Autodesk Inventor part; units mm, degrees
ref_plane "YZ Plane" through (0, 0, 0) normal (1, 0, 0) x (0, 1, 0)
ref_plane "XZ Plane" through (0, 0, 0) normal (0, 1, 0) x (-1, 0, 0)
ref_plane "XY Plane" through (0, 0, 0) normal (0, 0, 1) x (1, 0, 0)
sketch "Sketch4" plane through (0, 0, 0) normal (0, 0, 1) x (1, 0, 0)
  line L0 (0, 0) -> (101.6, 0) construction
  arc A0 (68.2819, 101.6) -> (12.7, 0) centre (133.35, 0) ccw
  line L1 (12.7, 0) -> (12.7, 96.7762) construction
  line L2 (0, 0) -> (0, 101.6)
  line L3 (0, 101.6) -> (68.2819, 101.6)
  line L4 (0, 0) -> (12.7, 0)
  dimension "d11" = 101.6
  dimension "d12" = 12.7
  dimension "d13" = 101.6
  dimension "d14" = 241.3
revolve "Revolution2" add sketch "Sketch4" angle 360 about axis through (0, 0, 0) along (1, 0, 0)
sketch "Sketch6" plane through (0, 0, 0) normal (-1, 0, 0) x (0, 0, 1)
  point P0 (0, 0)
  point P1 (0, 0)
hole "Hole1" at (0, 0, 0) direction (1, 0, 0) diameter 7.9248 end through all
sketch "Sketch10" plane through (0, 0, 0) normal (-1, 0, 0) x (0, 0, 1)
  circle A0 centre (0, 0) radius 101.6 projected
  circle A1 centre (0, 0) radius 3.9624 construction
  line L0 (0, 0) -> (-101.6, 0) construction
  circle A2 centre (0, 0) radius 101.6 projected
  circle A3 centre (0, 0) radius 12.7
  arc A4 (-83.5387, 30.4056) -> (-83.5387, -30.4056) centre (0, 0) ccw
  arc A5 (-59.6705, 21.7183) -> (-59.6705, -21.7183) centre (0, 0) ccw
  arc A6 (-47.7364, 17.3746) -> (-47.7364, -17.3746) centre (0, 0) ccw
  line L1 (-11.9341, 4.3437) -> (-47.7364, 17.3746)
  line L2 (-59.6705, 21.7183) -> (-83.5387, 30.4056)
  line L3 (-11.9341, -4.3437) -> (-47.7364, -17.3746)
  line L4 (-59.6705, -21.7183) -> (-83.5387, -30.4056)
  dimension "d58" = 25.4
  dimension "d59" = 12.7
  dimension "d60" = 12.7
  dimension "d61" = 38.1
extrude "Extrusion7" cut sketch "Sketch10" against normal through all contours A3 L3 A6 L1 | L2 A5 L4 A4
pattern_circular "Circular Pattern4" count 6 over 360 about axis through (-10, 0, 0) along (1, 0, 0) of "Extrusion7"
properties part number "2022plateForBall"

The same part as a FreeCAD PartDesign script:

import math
import FreeCAD as App
import Part
import Sketcher
from FreeCAD import Vector
Q = App.Units.Quantity

doc = App.newDocument("Part")
body = doc.addObject("PartDesign::Body", "Body")

# Sketch on XY plane
sketch1 = body.newObject("Sketcher::SketchObject", "Sketch")
sketch1.AttachmentSupport = (doc.getObject("XY_Plane"), [""])
sketch1.MapMode = "FlatFace"
sketch1.addGeometry(Part.ArcOfCircle(Part.Circle(Vector(133, 0, 0), Vector(0, 0, 1), 121), math.radians(123), math.radians(180)), False)
sketch1.addGeometry(Part.LineSegment(Vector(68, 102, 0), Vector(0, 102, 0)), False)
sketch1.addGeometry(Part.LineSegment(Vector(0, 102, 0), Vector(0, 0, 0)), False)
sketch1.addGeometry(Part.LineSegment(Vector(0, 0, 0), Vector(13, 0, 0)), False)
sketch1.addConstraint(Sketcher.Constraint("Coincident", 0, 1, 1, 1))
sketch1.addConstraint(Sketcher.Constraint("Coincident", 1, 2, 2, 1))
sketch1.addConstraint(Sketcher.Constraint("Coincident", 2, 2, 3, 1))
sketch1.addConstraint(Sketcher.Constraint("Coincident", 3, 2, 0, 2))
sketch1.addConstraint(Sketcher.Constraint("Horizontal", 1))
sketch1.addConstraint(Sketcher.Constraint("Vertical", 2))
sketch1.addConstraint(Sketcher.Constraint("Horizontal", 3))
sketch1.addConstraint(Sketcher.Constraint("Coincident", 2, 2, -1, 1))
sketch1.addConstraint(Sketcher.Constraint("PointOnObject", 0, 3, -1))
sketch1.addConstraint(Sketcher.Constraint("DistanceY", 2, 2, 2, 1, Q("4 in")))
sketch1.addConstraint(Sketcher.Constraint("Radius", 0, Q("4.75 in")))
sketch1.addConstraint(Sketcher.Constraint("DistanceX", 3, 1, 3, 2, Q("0.5 in")))
revolution = body.newObject("PartDesign::Revolution", "Revolution")
revolution.Profile = sketch1
revolution.ReferenceAxis = (sketch1, ["H_Axis"])
revolution.Angle = 360

# Sketch on YZ plane
sketch2 = body.newObject("Sketcher::SketchObject", "Sketch001")
sketch2.AttachmentSupport = (doc.getObject("YZ_Plane"), [""])
sketch2.MapMode = "FlatFace"
sketch2.addGeometry(Part.Circle(Vector(0, 0, 0), Vector(0, 0, 1), 4), False)
sketch2.addConstraint(Sketcher.Constraint("Coincident", 0, 3, -1, 1))
sketch2.addConstraint(Sketcher.Constraint("Diameter", 0, Q("0.312 in")))
doc.recompute()
hole = body.newObject("PartDesign::Hole", "Hole")
hole.Profile = sketch2
hole.ThreadType = "None"
hole.Diameter = Q("0.312 in")
hole.DepthType = "ThroughAll"
hole.Reversed = True

# Sketch on YZ plane
sketch3 = body.newObject("Sketcher::SketchObject", "Sketch002")
sketch3.AttachmentSupport = (doc.getObject("YZ_Plane"), [""])
sketch3.MapMode = "FlatFace"
sketch3.addGeometry(Part.ArcOfCircle(Part.Circle(Vector(0, 0, 0), Vector(0, 0, 1), 13), math.radians(-110), math.radians(-70)), False)
sketch3.addGeometry(Part.LineSegment(Vector(4, -12, 0), Vector(17, -48, 0)), False)
sketch3.addGeometry(Part.ArcOfCircle(Part.Circle(Vector(0, 0, 0), Vector(0, 0, 1), 51), math.radians(-110), math.radians(-70)), False)
sketch3.addGeometry(Part.LineSegment(Vector(-17, -48, 0), Vector(-4, -12, 0)), False)
sketch3.addGeometry(Part.LineSegment(Vector(22, -60, 0), Vector(30, -84, 0)), False)
sketch3.addGeometry(Part.ArcOfCircle(Part.Circle(Vector(0, 0, 0), Vector(0, 0, 1), 89), math.radians(-110), math.radians(-70)), False)
sketch3.addGeometry(Part.LineSegment(Vector(-30, -84, 0), Vector(-22, -60, 0)), False)
sketch3.addGeometry(Part.ArcOfCircle(Part.Circle(Vector(0, 0, 0), Vector(0, 0, 1), 64), math.radians(-110), math.radians(-70)), False)
sketch3.addConstraint(Sketcher.Constraint("Coincident", 0, 2, 1, 1))
sketch3.addConstraint(Sketcher.Constraint("Coincident", 1, 2, 2, 2))
sketch3.addConstraint(Sketcher.Constraint("Coincident", 2, 1, 3, 1))
sketch3.addConstraint(Sketcher.Constraint("Coincident", 3, 2, 0, 1))
sketch3.addConstraint(Sketcher.Constraint("Coincident", 4, 2, 5, 2))
sketch3.addConstraint(Sketcher.Constraint("Coincident", 5, 1, 6, 1))
sketch3.addConstraint(Sketcher.Constraint("Coincident", 6, 2, 7, 1))
sketch3.addConstraint(Sketcher.Constraint("Coincident", 7, 2, 4, 1))
sketch3.addConstraint(Sketcher.Constraint("Coincident", 0, 3, -1, 1))
sketch3.addConstraint(Sketcher.Constraint("Coincident", 2, 3, -1, 1))
sketch3.addConstraint(Sketcher.Constraint("Coincident", 5, 3, -1, 1))
sketch3.addConstraint(Sketcher.Constraint("Coincident", 7, 3, -1, 1))
sketch3.addConstraint(Sketcher.Constraint("Parallel", 1, 4))
sketch3.addConstraint(Sketcher.Constraint("Parallel", 3, 6))
sketch3.addConstraint(Sketcher.Constraint("Horizontal", 1, 2, 2, 1))
sketch3.addConstraint(Sketcher.Constraint("Horizontal", 0, 2, 3, 2))
sketch3.addConstraint(Sketcher.Constraint("Horizontal", 4, 2, 5, 1))
sketch3.addConstraint(Sketcher.Constraint("Radius", 0, Q("0.5 in")))
sketch3.addConstraint(Sketcher.Constraint("Distance", 4, Q("1 in")))
sketch3.addConstraint(Sketcher.Constraint("Radius", 2, Q("2 in")))
sketch3.addConstraint(Sketcher.Constraint("Radius", 5, Q("3.5 in")))
sketch3.addConstraint(Sketcher.Constraint("Angle", 1, Q("-70 deg")))
sketch3.addConstraint(Sketcher.Constraint("DistanceX", -1, 1, 0, 2, Q("0.171 in")))
sketch3.addConstraint(Sketcher.Constraint("DistanceX", 6, 2, 2, 1, Q("0.171 in")))
pocket1 = body.newObject("PartDesign::Pocket", "Pocket")
pocket1.Profile = sketch3
pocket1.Type = "ThroughAll"
pocket1.Reversed = True
doc.recompute()

polarpattern = body.newObject("PartDesign::PolarPattern", "PolarPattern")
polarpattern.Originals = [pocket1]
polarpattern.Axis = (doc.getObject("X_Axis"), [""])
polarpattern.Angle = 360
polarpattern.Occurrences = 6
body.Tip = polarpattern

doc.recompute()
